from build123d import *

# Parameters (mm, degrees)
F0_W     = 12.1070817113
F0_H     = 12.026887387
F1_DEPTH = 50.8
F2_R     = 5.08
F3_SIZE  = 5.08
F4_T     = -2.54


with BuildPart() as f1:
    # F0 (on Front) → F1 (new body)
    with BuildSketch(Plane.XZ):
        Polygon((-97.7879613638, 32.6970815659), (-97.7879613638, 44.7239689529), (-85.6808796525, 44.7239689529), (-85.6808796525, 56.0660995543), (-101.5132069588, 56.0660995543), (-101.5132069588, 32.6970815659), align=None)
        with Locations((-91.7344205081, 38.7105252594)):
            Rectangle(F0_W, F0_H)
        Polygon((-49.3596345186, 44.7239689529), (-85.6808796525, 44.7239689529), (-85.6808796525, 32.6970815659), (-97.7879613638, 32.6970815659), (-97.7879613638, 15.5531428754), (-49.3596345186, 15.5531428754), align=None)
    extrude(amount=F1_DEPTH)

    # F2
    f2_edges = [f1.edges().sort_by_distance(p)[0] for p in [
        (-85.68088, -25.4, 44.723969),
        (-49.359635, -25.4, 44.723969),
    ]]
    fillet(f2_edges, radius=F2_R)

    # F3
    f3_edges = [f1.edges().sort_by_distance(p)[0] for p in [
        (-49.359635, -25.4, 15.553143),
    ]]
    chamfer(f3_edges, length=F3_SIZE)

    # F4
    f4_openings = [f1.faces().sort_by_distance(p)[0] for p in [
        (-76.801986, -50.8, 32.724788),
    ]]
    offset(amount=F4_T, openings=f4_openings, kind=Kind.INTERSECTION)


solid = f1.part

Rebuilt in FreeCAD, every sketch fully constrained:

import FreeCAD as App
import Part
import Sketcher

V = App.Vector
Q = App.Units.Quantity


def edges_at(feature, points):
    """Names of the edges that pass closest to the given points."""
    edges = feature.Shape.Edges
    near = lambda p: min(range(len(edges)), key=lambda i: edges[i].distToShape(Part.Vertex(*p))[0])
    return sorted({f"Edge{near(p) + 1}" for p in points})


def faces_at(feature, points):
    """Names of the faces that lie closest to the given points."""
    faces = feature.Shape.Faces
    near = lambda p: min(range(len(faces)), key=lambda i: faces[i].distToShape(Part.Vertex(*p))[0])
    return sorted({f"Face{near(p) + 1}" for p in points})


def add_polygon(sketch, points):
    """Adds a closed chain of lines whose ends are joined by coincident constraints."""
    first, n = sketch.GeometryCount, len(points)
    for a, b in zip(points, points[1:] + points[:1]):
        sketch.addGeometry(Part.LineSegment(App.Vector(*a, 0), App.Vector(*b, 0)), False)
    for i in range(n):
        sketch.addConstraint(Sketcher.Constraint("Coincident", first + i, 2, first + (i + 1) % n, 1))

doc = App.newDocument("Part")
body = doc.addObject("PartDesign::Body", "Body")

sketch1 = doc.addObject("Sketcher::SketchObject", "Sketch")
body.addObject(sketch1)
sketch1.AttachmentSupport = (doc.XZ_Plane, [""])
sketch1.MapMode = "FlatFace"
add_polygon(sketch1, [(-85.68088, 44.723969), (-85.68088, 56.0661), (-101.513207, 56.0661), (-101.513207, 32.697082), (-97.787961, 32.697082), (-97.787961, 15.553143), (-49.359635, 15.553143), (-49.359635, 44.723969)])
sketch1.addConstraint(Sketcher.Constraint("Vertical", 0))
sketch1.addConstraint(Sketcher.Constraint("Horizontal", 1))
sketch1.addConstraint(Sketcher.Constraint("Vertical", 2))
sketch1.addConstraint(Sketcher.Constraint("Horizontal", 3))
sketch1.addConstraint(Sketcher.Constraint("Vertical", 4))
sketch1.addConstraint(Sketcher.Constraint("Horizontal", 5))
sketch1.addConstraint(Sketcher.Constraint("Vertical", 6))
sketch1.addConstraint(Sketcher.Constraint("Horizontal", 7))
sketch1.addConstraint(Sketcher.Constraint("DistanceY", 0, 1, 0, 2, 11.342131))
sketch1.addConstraint(Sketcher.Constraint("DistanceY", 4, 2, 4, 1, 17.143939))
sketch1.addConstraint(Sketcher.Constraint("DistanceY", -1, 1, 0, 2, 56.0661))
sketch1.addConstraint(Sketcher.Constraint("DistanceX", 1, 2, 1, 1, 15.832327))
sketch1.addConstraint(Sketcher.Constraint("DistanceX", 3, 1, 3, 2, 3.725246))
sketch1.addConstraint(Sketcher.Constraint("DistanceX", 5, 1, 5, 2, 48.428327))
sketch1.addConstraint(Sketcher.Constraint("DistanceY", 2, 2, 2, 1, 23.369018))
sketch1.addConstraint(Sketcher.Constraint("DistanceX", 0, 2, -1, 1, 85.68088))
pad1 = doc.addObject("PartDesign::Pad", "Pad")
body.addObject(pad1)
pad1.Profile = sketch1
pad1.Length = Q("2 in")
doc.recompute()

fillet = doc.addObject("PartDesign::Fillet", "Fillet")
body.addObject(fillet)
fillet.Base = (pad1, edges_at(pad1, [(-85.681, -25.4, 44.724), (-49.36, -25.4, 44.724)]))
fillet.Radius = Q("0.2 in")
doc.recompute()

chamfer = doc.addObject("PartDesign::Chamfer", "Chamfer")
body.addObject(chamfer)
chamfer.Base = (fillet, edges_at(fillet, [(-49.36, -25.4, 15.553)]))
chamfer.Size = Q("0.2 in")
doc.recompute()

thickness = doc.addObject("PartDesign::Thickness", "Thickness")
body.addObject(thickness)
thickness.Base = (chamfer, faces_at(chamfer, [(-75.436, -50.8, 35.81)]))
thickness.Value = Q("0.1 in")
thickness.Reversed = True
thickness.Join = "Intersection"

doc.recompute()
